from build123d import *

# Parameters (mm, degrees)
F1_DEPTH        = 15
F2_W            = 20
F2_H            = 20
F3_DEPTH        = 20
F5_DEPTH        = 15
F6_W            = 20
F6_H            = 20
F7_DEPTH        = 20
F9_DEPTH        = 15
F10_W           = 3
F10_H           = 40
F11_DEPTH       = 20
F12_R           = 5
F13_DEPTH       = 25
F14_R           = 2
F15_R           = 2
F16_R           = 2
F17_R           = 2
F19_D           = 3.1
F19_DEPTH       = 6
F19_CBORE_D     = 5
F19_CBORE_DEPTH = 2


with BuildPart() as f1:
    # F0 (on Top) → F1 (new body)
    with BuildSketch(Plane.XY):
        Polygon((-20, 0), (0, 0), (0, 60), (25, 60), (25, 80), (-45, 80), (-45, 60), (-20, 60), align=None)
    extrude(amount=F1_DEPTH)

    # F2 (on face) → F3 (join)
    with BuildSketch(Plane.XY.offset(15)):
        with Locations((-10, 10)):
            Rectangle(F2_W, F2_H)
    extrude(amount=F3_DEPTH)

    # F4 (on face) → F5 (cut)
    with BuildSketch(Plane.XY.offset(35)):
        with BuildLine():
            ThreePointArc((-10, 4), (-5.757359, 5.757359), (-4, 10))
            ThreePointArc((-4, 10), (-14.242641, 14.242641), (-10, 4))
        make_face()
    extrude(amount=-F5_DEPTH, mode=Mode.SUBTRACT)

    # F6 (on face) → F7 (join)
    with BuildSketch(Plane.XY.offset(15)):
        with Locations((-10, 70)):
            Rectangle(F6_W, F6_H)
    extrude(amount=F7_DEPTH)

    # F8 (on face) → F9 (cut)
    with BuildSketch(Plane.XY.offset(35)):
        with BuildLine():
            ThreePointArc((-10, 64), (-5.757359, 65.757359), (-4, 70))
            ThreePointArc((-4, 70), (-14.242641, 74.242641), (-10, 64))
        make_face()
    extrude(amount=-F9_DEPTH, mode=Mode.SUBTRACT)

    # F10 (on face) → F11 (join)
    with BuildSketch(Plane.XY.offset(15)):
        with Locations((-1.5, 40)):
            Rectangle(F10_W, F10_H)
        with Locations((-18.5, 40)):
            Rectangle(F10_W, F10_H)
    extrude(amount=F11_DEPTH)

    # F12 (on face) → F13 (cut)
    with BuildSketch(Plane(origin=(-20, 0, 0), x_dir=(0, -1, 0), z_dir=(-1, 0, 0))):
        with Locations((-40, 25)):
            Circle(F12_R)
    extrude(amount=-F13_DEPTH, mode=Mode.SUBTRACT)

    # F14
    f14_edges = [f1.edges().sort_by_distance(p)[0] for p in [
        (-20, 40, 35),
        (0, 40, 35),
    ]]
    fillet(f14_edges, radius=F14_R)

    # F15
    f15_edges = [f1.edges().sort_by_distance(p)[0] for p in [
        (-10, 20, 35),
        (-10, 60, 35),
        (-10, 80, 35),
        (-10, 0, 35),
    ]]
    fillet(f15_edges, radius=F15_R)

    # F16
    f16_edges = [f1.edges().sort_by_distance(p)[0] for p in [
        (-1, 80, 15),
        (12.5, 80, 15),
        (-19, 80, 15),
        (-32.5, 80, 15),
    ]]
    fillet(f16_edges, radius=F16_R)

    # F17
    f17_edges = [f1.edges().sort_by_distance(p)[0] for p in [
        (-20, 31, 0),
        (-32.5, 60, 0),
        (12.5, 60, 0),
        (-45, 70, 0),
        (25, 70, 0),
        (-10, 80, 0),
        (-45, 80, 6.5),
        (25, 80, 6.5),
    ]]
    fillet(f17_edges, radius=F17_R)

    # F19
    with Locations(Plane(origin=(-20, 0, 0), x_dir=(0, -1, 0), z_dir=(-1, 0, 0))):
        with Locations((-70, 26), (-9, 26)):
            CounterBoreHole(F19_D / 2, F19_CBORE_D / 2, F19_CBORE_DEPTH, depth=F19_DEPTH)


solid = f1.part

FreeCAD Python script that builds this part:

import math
import FreeCAD as App
import Part
import Sketcher

V = App.Vector


def edges_at(feature, points):
    """Names of the edges that pass closest to the given points."""
    edges = feature.Shape.Edges
    near = lambda p: min(range(len(edges)), key=lambda i: edges[i].distToShape(Part.Vertex(*p))[0])
    return sorted({f"Edge{near(p) + 1}" for p in points})

doc = App.newDocument("Part")
body = doc.addObject("PartDesign::Body", "Body")

sketch1 = body.newObject("Sketcher::SketchObject", "Sketch")
sketch1.AttachmentSupport = (doc.getObject("XY_Plane"), [""])
sketch1.MapMode = "FlatFace"
sketch1.addGeometry(Part.LineSegment(V(-20, 0, 0), V(0, 0, 0)), False)
sketch1.addGeometry(Part.LineSegment(V(0, 0, 0), V(0, 60, 0)), False)
sketch1.addGeometry(Part.LineSegment(V(0, 60, 0), V(25, 60, 0)), False)
sketch1.addGeometry(Part.LineSegment(V(25, 60, 0), V(25, 80, 0)), False)
sketch1.addGeometry(Part.LineSegment(V(25, 80, 0), V(-45, 80, 0)), False)
sketch1.addGeometry(Part.LineSegment(V(-45, 80, 0), V(-45, 60, 0)), False)
sketch1.addGeometry(Part.LineSegment(V(-45, 60, 0), V(-20, 60, 0)), False)
sketch1.addGeometry(Part.LineSegment(V(-20, 60, 0), V(-20, 0, 0)), False)
sketch1.addConstraint(Sketcher.Constraint("Coincident", 0, 2, 1, 1))
sketch1.addConstraint(Sketcher.Constraint("Coincident", 1, 2, 2, 1))
sketch1.addConstraint(Sketcher.Constraint("Coincident", 2, 2, 3, 1))
sketch1.addConstraint(Sketcher.Constraint("Coincident", 3, 2, 4, 1))
sketch1.addConstraint(Sketcher.Constraint("Coincident", 4, 2, 5, 1))
sketch1.addConstraint(Sketcher.Constraint("Coincident", 5, 2, 6, 1))
sketch1.addConstraint(Sketcher.Constraint("Coincident", 6, 2, 7, 1))
sketch1.addConstraint(Sketcher.Constraint("Coincident", 7, 2, 0, 1))
sketch1.addConstraint(Sketcher.Constraint("Horizontal", 0))
sketch1.addConstraint(Sketcher.Constraint("Vertical", 1))
sketch1.addConstraint(Sketcher.Constraint("Horizontal", 2))
sketch1.addConstraint(Sketcher.Constraint("Vertical", 3))
sketch1.addConstraint(Sketcher.Constraint("Horizontal", 4))
sketch1.addConstraint(Sketcher.Constraint("Vertical", 5))
sketch1.addConstraint(Sketcher.Constraint("Horizontal", 6))
sketch1.addConstraint(Sketcher.Constraint("Vertical", 7))
sketch1.addConstraint(Sketcher.Constraint("Coincident", 0, 2, -1, 1))
sketch1.addConstraint(Sketcher.Constraint("Horizontal", 2, 2, 5, 2))
sketch1.addConstraint(Sketcher.Constraint("Equal", 2, 6))
sketch1.addConstraint(Sketcher.Constraint("Equal", 0, 3))
sketch1.addConstraint(Sketcher.Constraint("DistanceX", 0, 1, 0, 2, 20.0))
sketch1.addConstraint(Sketcher.Constraint("DistanceX", 2, 1, 2, 2, 25.0))
sketch1.addConstraint(Sketcher.Constraint("DistanceY", 1, 1, 1, 2, 60.0))
pad1 = body.newObject("PartDesign::Pad", "Pad")
pad1.Profile = sketch1
pad1.Length = 15

sketch2 = body.newObject("Sketcher::SketchObject", "Sketch001")
sketch2.AttachmentSupport = (doc.getObject("XY_Plane"), [""])
sketch2.MapMode = "FlatFace"
sketch2.AttachmentOffset = App.Placement(V(0, 0, 15), App.Rotation())
sketch2.addGeometry(Part.LineSegment(V(-20, 20, 0), V(-20, 0, 0)), False)
sketch2.addGeometry(Part.LineSegment(V(-20, 0, 0), V(0, 0, 0)), False)
sketch2.addGeometry(Part.LineSegment(V(0, 0, 0), V(0, 20, 0)), False)
sketch2.addGeometry(Part.LineSegment(V(0, 20, 0), V(-20, 20, 0)), False)
sketch2.addConstraint(Sketcher.Constraint("Coincident", 0, 2, 1, 1))
sketch2.addConstraint(Sketcher.Constraint("Coincident", 1, 2, 2, 1))
sketch2.addConstraint(Sketcher.Constraint("Coincident", 2, 2, 3, 1))
sketch2.addConstraint(Sketcher.Constraint("Coincident", 3, 2, 0, 1))
sketch2.addConstraint(Sketcher.Constraint("Vertical", 0))
sketch2.addConstraint(Sketcher.Constraint("Horizontal", 1))
sketch2.addConstraint(Sketcher.Constraint("Vertical", 2))
sketch2.addConstraint(Sketcher.Constraint("Horizontal", 3))
sketch2.addConstraint(Sketcher.Constraint("Coincident", 1, 2, -1, 1))
sketch2.addConstraint(Sketcher.Constraint("Equal", 3, 0))
sketch2.addConstraint(Sketcher.Constraint("DistanceX", 1, 1, 1, 2, 20.0))
pad2 = body.newObject("PartDesign::Pad", "Pad001")
pad2.Profile = sketch2
pad2.Length = 20

sketch3 = body.newObject("Sketcher::SketchObject", "Sketch002")
sketch3.AttachmentSupport = (doc.getObject("XY_Plane"), [""])
sketch3.MapMode = "FlatFace"
sketch3.AttachmentOffset = App.Placement(V(0, 0, 35), App.Rotation())
sketch3.addGeometry(Part.ArcOfCircle(Part.Circle(V(-10, 10, 0), V(0, 0, 1), 6), math.radians(-90), math.radians(0)), False)
sketch3.addGeometry(Part.ArcOfCircle(Part.Circle(V(-10, 10, 0), V(0, 0, 1), 6), math.radians(0), math.radians(270)), False)
sketch3.addConstraint(Sketcher.Constraint("Tangent", 0, 1, 1, 2))
sketch3.addConstraint(Sketcher.Constraint("Coincident", 1, 1, 0, 2))
sketch3.addConstraint(Sketcher.Constraint("Horizontal", 0, 3, 1, 1))
sketch3.addConstraint(Sketcher.Constraint("Vertical", 1, 3, 0, 1))
sketch3.addConstraint(Sketcher.Constraint("Radius", 0, 5.999999))
sketch3.addConstraint(Sketcher.Constraint("DistanceX", 0, 3, -1, 1, 9.999999))
sketch3.addConstraint(Sketcher.Constraint("DistanceY", -1, 1, 0, 3, 9.999999))
pocket1 = body.newObject("PartDesign::Pocket", "Pocket")
pocket1.Profile = sketch3
pocket1.Length = 15

sketch4 = body.newObject("Sketcher::SketchObject", "Sketch003")
sketch4.AttachmentSupport = (doc.getObject("XY_Plane"), [""])
sketch4.MapMode = "FlatFace"
sketch4.AttachmentOffset = App.Placement(V(0, 0, 15), App.Rotation())
sketch4.addGeometry(Part.LineSegment(V(-20, 80, 0), V(-20, 60, 0)), False)
sketch4.addGeometry(Part.LineSegment(V(-20, 60, 0), V(0, 60, 0)), False)
sketch4.addGeometry(Part.LineSegment(V(0, 60, 0), V(0, 80, 0)), False)
sketch4.addGeometry(Part.LineSegment(V(0, 80, 0), V(-20, 80, 0)), False)
sketch4.addConstraint(Sketcher.Constraint("Coincident", 0, 2, 1, 1))
sketch4.addConstraint(Sketcher.Constraint("Coincident", 1, 2, 2, 1))
sketch4.addConstraint(Sketcher.Constraint("Coincident", 2, 2, 3, 1))
sketch4.addConstraint(Sketcher.Constraint("Coincident", 3, 2, 0, 1))
sketch4.addConstraint(Sketcher.Constraint("Vertical", 0))
sketch4.addConstraint(Sketcher.Constraint("Horizontal", 1))
sketch4.addConstraint(Sketcher.Constraint("Vertical", 2))
sketch4.addConstraint(Sketcher.Constraint("Horizontal", 3))
sketch4.addConstraint(Sketcher.Constraint("PointOnObject", 1, 2, -2))
sketch4.addConstraint(Sketcher.Constraint("Equal", 3, 0))
sketch4.addConstraint(Sketcher.Constraint("DistanceX", 1, 1, 1, 2, 20.0))
sketch4.addConstraint(Sketcher.Constraint("DistanceY", -1, 1, 0, 2, 60.0))
pad3 = body.newObject("PartDesign::Pad", "Pad002")
pad3.Profile = sketch4
pad3.Length = 20

sketch5 = body.newObject("Sketcher::SketchObject", "Sketch004")
sketch5.AttachmentSupport = (doc.getObject("XY_Plane"), [""])
sketch5.MapMode = "FlatFace"
sketch5.AttachmentOffset = App.Placement(V(0, 0, 35), App.Rotation())
sketch5.addGeometry(Part.ArcOfCircle(Part.Circle(V(-10, 70, 0), V(0, 0, 1), 6), math.radians(-90), math.radians(0)), False)
sketch5.addGeometry(Part.ArcOfCircle(Part.Circle(V(-10, 70, 0), V(0, 0, 1), 6), math.radians(0), math.radians(270)), False)
sketch5.addConstraint(Sketcher.Constraint("Tangent", 0, 1, 1, 2))
sketch5.addConstraint(Sketcher.Constraint("Coincident", 1, 1, 0, 2))
sketch5.addConstraint(Sketcher.Constraint("Horizontal", 0, 3, 1, 1))
sketch5.addConstraint(Sketcher.Constraint("Vertical", 1, 3, 0, 1))
sketch5.addConstraint(Sketcher.Constraint("Radius", 0, 5.999999))
sketch5.addConstraint(Sketcher.Constraint("DistanceX", 0, 3, -1, 1, 9.999999))
sketch5.addConstraint(Sketcher.Constraint("DistanceY", -1, 1, 0, 3, 69.999999))
pocket2 = body.newObject("PartDesign::Pocket", "Pocket001")
pocket2.Profile = sketch5
pocket2.Length = 15

sketch6 = body.newObject("Sketcher::SketchObject", "Sketch005")
sketch6.AttachmentSupport = (doc.getObject("XY_Plane"), [""])
sketch6.MapMode = "FlatFace"
sketch6.AttachmentOffset = App.Placement(V(0, 0, 15), App.Rotation())
sketch6.addGeometry(Part.LineSegment(V(-3, 60, 0), V(-3, 20, 0)), False)
sketch6.addGeometry(Part.LineSegment(V(-3, 20, 0), V(0, 20, 0)), False)
sketch6.addGeometry(Part.LineSegment(V(0, 20, 0), V(0, 60, 0)), False)
sketch6.addGeometry(Part.LineSegment(V(0, 60, 0), V(-3, 60, 0)), False)
sketch6.addGeometry(Part.LineSegment(V(-20, 60, 0), V(-20, 20, 0)), False)
sketch6.addGeometry(Part.LineSegment(V(-20, 20, 0), V(-17, 20, 0)), False)
sketch6.addGeometry(Part.LineSegment(V(-17, 20, 0), V(-17, 60, 0)), False)
sketch6.addGeometry(Part.LineSegment(V(-17, 60, 0), V(-20, 60, 0)), False)
sketch6.addConstraint(Sketcher.Constraint("Coincident", 0, 2, 1, 1))
sketch6.addConstraint(Sketcher.Constraint("Coincident", 1, 2, 2, 1))
sketch6.addConstraint(Sketcher.Constraint("Coincident", 2, 2, 3, 1))
sketch6.addConstraint(Sketcher.Constraint("Coincident", 3, 2, 0, 1))
sketch6.addConstraint(Sketcher.Constraint("Coincident", 4, 2, 5, 1))
sketch6.addConstraint(Sketcher.Constraint("Coincident", 5, 2, 6, 1))
sketch6.addConstraint(Sketcher.Constraint("Coincident", 6, 2, 7, 1))
sketch6.addConstraint(Sketcher.Constraint("Coincident", 7, 2, 4, 1))
sketch6.addConstraint(Sketcher.Constraint("Vertical", 0))
sketch6.addConstraint(Sketcher.Constraint("Horizontal", 1))
sketch6.addConstraint(Sketcher.Constraint("Vertical", 2))
sketch6.addConstraint(Sketcher.Constraint("Horizontal", 3))
sketch6.addConstraint(Sketcher.Constraint("Vertical", 4))
sketch6.addConstraint(Sketcher.Constraint("Horizontal", 5))
sketch6.addConstraint(Sketcher.Constraint("Vertical", 6))
sketch6.addConstraint(Sketcher.Constraint("Horizontal", 7))
sketch6.addConstraint(Sketcher.Constraint("PointOnObject", 1, 2, -2))
sketch6.addConstraint(Sketcher.Constraint("Horizontal", 1, 2, 4, 2))
sketch6.addConstraint(Sketcher.Constraint("Horizontal", 3, 2, 6, 2))
sketch6.addConstraint(Sketcher.Constraint("Equal", 3, 5))
sketch6.addConstraint(Sketcher.Constraint("DistanceX", 1, 1, 1, 2, 3.0))
sketch6.addConstraint(Sketcher.Constraint("DistanceY", 0, 2, 0, 1, 40.0))
sketch6.addConstraint(Sketcher.Constraint("DistanceY", -1, 1, 0, 2, 20.0))
sketch6.addConstraint(Sketcher.Constraint("DistanceX", 4, 2, -1, 1, 20.0))
pad4 = body.newObject("PartDesign::Pad", "Pad003")
pad4.Profile = sketch6
pad4.Length = 20

sketch7 = body.newObject("Sketcher::SketchObject", "Sketch006")
sketch7.AttachmentSupport = (doc.getObject("YZ_Plane"), [""])
sketch7.MapMode = "FlatFace"
sketch7.AttachmentOffset = App.Placement(V(0, 0, -20), App.Rotation())
sketch7.addGeometry(Part.Circle(V(40, 25, 0), V(0, 0, 1), 5), False)
sketch7.addConstraint(Sketcher.Constraint("Diameter", 0, 10.0))
sketch7.addConstraint(Sketcher.Constraint("DistanceX", -1, 1, 0, 3, 40.0))
sketch7.addConstraint(Sketcher.Constraint("DistanceY", -1, 1, 0, 3, 25.0))
pocket3 = body.newObject("PartDesign::Pocket", "Pocket002")
pocket3.Profile = sketch7
pocket3.Length = 25
pocket3.Reversed = True
doc.recompute()

fillet = body.newObject("PartDesign::Fillet", "Fillet")
fillet.Base = (pocket3, edges_at(pocket3, [(-20, 40, 35), (0, 40, 35)]))
fillet.Radius = 2
doc.recompute()

fillet2 = body.newObject("PartDesign::Fillet", "Fillet001")
fillet2.Base = (fillet, edges_at(fillet, [
    (-10, 20, 35),
    (-10, 60, 35),
    (-10, 80, 35),
    (-10, 0, 35),
]))
fillet2.Radius = 2
doc.recompute()

fillet3 = body.newObject("PartDesign::Fillet", "Fillet002")
fillet3.Base = (fillet2, edges_at(fillet2, [
    (11.5, 80, 15),
    (11.5, 80, 15),
    (-31.5, 80, 15),
    (-31.5, 80, 15),
]))
fillet3.Radius = 2
doc.recompute()

fillet4 = body.newObject("PartDesign::Fillet", "Fillet003")
fillet4.Base = (fillet3, edges_at(fillet3, [
    (-20, 31, 0),
    (-32.5, 60, 0),
    (12.5, 60, 0),
    (-45, 70, 0),
    (25, 70, 0),
    (-10, 80, 0),
    (-45, 80, 6.5),
    (25, 80, 6.5),
]))
fillet4.Radius = 2

sketch8 = body.newObject("Sketcher::SketchObject", "Sketch007")
sketch8.AttachmentSupport = (doc.getObject("YZ_Plane"), [""])
sketch8.MapMode = "FlatFace"
sketch8.AttachmentOffset = App.Placement(V(0, 0, -20), App.Rotation())
sketch8.addGeometry(Part.Circle(V(70, 26, 0), V(0, 0, 1), 1.6), False)
sketch8.addGeometry(Part.Circle(V(9, 26, 0), V(0, 0, 1), 1.6), False)
sketch8.addConstraint(Sketcher.Constraint("Equal", 0, 1))
sketch8.addConstraint(Sketcher.Constraint("Horizontal", 0, 3, 1, 3))
sketch8.addConstraint(Sketcher.Constraint("Diameter", 0, 3.1))
sketch8.addConstraint(Sketcher.Constraint("DistanceX", -1, 1, 0, 3, 70.0))
sketch8.addConstraint(Sketcher.Constraint("DistanceY", -1, 1, 0, 3, 26.0))
sketch8.addConstraint(Sketcher.Constraint("DistanceX", -1, 1, 1, 3, 9.0))
doc.recompute()
hole = body.newObject("PartDesign::Hole", "Hole")
hole.Profile = sketch8
hole.ThreadType = "None"
hole.Diameter = 3.1
hole.DepthType = "Dimension"
hole.Depth = 6
hole.DrillPoint = "Flat"
hole.HoleCutType = "Counterbore"
hole.HoleCutDiameter = 5
hole.HoleCutDepth = 2
hole.Reversed = True

doc.recompute()
